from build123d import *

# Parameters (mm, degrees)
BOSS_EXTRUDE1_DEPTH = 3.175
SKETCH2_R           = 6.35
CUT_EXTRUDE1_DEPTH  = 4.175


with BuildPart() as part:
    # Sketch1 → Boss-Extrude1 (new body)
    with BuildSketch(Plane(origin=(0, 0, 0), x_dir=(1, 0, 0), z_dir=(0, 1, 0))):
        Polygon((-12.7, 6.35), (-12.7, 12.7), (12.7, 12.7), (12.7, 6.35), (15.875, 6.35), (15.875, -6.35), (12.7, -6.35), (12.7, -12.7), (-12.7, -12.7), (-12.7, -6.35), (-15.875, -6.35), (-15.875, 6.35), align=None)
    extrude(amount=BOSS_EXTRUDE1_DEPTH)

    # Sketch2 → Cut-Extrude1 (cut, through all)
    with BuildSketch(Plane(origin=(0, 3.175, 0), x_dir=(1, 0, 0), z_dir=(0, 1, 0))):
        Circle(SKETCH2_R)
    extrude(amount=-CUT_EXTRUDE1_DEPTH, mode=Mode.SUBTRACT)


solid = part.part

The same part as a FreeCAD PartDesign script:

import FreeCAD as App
import Part
import Sketcher
Q = App.Units.Quantity

doc = App.newDocument("Part")
body = doc.addObject("PartDesign::Body", "Body")

# Sketch on XZ plane
sketch1 = body.newObject("Sketcher::SketchObject", "Sketch")
sketch1.AttachmentSupport = (doc.getObject("XZ_Plane"), [""])
sketch1.MapMode = "FlatFace"
sketch1.addGeometry(Part.LineSegment(App.Vector(-12.7, -12.7, 0), App.Vector(-12.7, -6.3, 0)), False)
sketch1.addGeometry(Part.LineSegment(App.Vector(-12.7, -6.3, 0), App.Vector(-15.9, -6.3, 0)), False)
sketch1.addGeometry(Part.LineSegment(App.Vector(-15.9, -6.3, 0), App.Vector(-15.9, 6.3, 0)), False)
sketch1.addGeometry(Part.LineSegment(App.Vector(-15.9, 6.3, 0), App.Vector(-12.7, 6.3, 0)), False)
sketch1.addGeometry(Part.LineSegment(App.Vector(-12.7, 6.3, 0), App.Vector(-12.7, 12.7, 0)), False)
sketch1.addGeometry(Part.LineSegment(App.Vector(-12.7, 12.7, 0), App.Vector(12.7, 12.7, 0)), False)
sketch1.addGeometry(Part.LineSegment(App.Vector(12.7, 12.7, 0), App.Vector(12.7, 6.3, 0)), False)
sketch1.addGeometry(Part.LineSegment(App.Vector(12.7, 6.3, 0), App.Vector(15.9, 6.3, 0)), False)
sketch1.addGeometry(Part.LineSegment(App.Vector(15.9, 6.3, 0), App.Vector(15.9, -6.3, 0)), False)
sketch1.addGeometry(Part.LineSegment(App.Vector(15.9, -6.3, 0), App.Vector(12.7, -6.3, 0)), False)
sketch1.addGeometry(Part.LineSegment(App.Vector(12.7, -6.3, 0), App.Vector(12.7, -12.7, 0)), False)
sketch1.addGeometry(Part.LineSegment(App.Vector(12.7, -12.7, 0), App.Vector(-12.7, -12.7, 0)), False)
sketch1.addConstraint(Sketcher.Constraint("Coincident", 0, 2, 1, 1))
sketch1.addConstraint(Sketcher.Constraint("Coincident", 1, 2, 2, 1))
sketch1.addConstraint(Sketcher.Constraint("Coincident", 2, 2, 3, 1))
sketch1.addConstraint(Sketcher.Constraint("Coincident", 3, 2, 4, 1))
sketch1.addConstraint(Sketcher.Constraint("Coincident", 4, 2, 5, 1))
sketch1.addConstraint(Sketcher.Constraint("Coincident", 5, 2, 6, 1))
sketch1.addConstraint(Sketcher.Constraint("Coincident", 6, 2, 7, 1))
sketch1.addConstraint(Sketcher.Constraint("Coincident", 7, 2, 8, 1))
sketch1.addConstraint(Sketcher.Constraint("Coincident", 8, 2, 9, 1))
sketch1.addConstraint(Sketcher.Constraint("Coincident", 9, 2, 10, 1))
sketch1.addConstraint(Sketcher.Constraint("Coincident", 10, 2, 11, 1))
sketch1.addConstraint(Sketcher.Constraint("Coincident", 11, 2, 0, 1))
sketch1.addConstraint(Sketcher.Constraint("Vertical", 0))
sketch1.addConstraint(Sketcher.Constraint("Horizontal", 1))
sketch1.addConstraint(Sketcher.Constraint("Vertical", 2))
sketch1.addConstraint(Sketcher.Constraint("Horizontal", 3))
sketch1.addConstraint(Sketcher.Constraint("Vertical", 4))
sketch1.addConstraint(Sketcher.Constraint("Horizontal", 5))
sketch1.addConstraint(Sketcher.Constraint("Vertical", 6))
sketch1.addConstraint(Sketcher.Constraint("Horizontal", 7))
sketch1.addConstraint(Sketcher.Constraint("Vertical", 8))
sketch1.addConstraint(Sketcher.Constraint("Horizontal", 9))
sketch1.addConstraint(Sketcher.Constraint("Vertical", 10))
sketch1.addConstraint(Sketcher.Constraint("Horizontal", 11))
sketch1.addConstraint(Sketcher.Constraint("Symmetric", 0, 2, 6, 2, -1, 1))
sketch1.addConstraint(Sketcher.Constraint("Symmetric", 2, 2, 8, 2, -1, 1))
sketch1.addConstraint(Sketcher.Constraint("Symmetric", 4, 2, 10, 2, -1, 1))
sketch1.addConstraint(Sketcher.Constraint("Symmetric", 3, 2, 6, 2, -2))
sketch1.addConstraint(Sketcher.Constraint("DistanceX", 5, 1, 5, 2, Q("1 in")))
sketch1.addConstraint(Sketcher.Constraint("DistanceY", 2, 1, 2, 2, Q("0.5 in")))
sketch1.addConstraint(Sketcher.Constraint("DistanceY", 10, 2, 5, 2, Q("1 in")))
sketch1.addConstraint(Sketcher.Constraint("DistanceX", 1, 2, 1, 1, Q("0.125 in")))
pad1 = body.newObject("PartDesign::Pad", "Pad")
pad1.Profile = sketch1
pad1.Length = Q("0.125 in")
pad1.Reversed = True

# Sketch on XZ plane
sketch2 = body.newObject("Sketcher::SketchObject", "Sketch001")
sketch2.AttachmentSupport = (doc.getObject("XZ_Plane"), [""])
sketch2.MapMode = "FlatFace"
sketch2.AttachmentOffset = App.Placement(App.Vector(0, 0, -0.125 * 25.4), App.Rotation())
sketch2.addGeometry(Part.Circle(App.Vector(0, 0, 0), App.Vector(0, 0, 1), 6), False)
sketch2.addConstraint(Sketcher.Constraint("Coincident", 0, 3, -1, 1))
sketch2.addConstraint(Sketcher.Constraint("Diameter", 0, Q("0.5 in")))
pocket1 = body.newObject("PartDesign::Pocket", "Pocket")
pocket1.Profile = sketch2
pocket1.Type = "ThroughAll"
pocket1.Reversed = True

doc.recompute()
